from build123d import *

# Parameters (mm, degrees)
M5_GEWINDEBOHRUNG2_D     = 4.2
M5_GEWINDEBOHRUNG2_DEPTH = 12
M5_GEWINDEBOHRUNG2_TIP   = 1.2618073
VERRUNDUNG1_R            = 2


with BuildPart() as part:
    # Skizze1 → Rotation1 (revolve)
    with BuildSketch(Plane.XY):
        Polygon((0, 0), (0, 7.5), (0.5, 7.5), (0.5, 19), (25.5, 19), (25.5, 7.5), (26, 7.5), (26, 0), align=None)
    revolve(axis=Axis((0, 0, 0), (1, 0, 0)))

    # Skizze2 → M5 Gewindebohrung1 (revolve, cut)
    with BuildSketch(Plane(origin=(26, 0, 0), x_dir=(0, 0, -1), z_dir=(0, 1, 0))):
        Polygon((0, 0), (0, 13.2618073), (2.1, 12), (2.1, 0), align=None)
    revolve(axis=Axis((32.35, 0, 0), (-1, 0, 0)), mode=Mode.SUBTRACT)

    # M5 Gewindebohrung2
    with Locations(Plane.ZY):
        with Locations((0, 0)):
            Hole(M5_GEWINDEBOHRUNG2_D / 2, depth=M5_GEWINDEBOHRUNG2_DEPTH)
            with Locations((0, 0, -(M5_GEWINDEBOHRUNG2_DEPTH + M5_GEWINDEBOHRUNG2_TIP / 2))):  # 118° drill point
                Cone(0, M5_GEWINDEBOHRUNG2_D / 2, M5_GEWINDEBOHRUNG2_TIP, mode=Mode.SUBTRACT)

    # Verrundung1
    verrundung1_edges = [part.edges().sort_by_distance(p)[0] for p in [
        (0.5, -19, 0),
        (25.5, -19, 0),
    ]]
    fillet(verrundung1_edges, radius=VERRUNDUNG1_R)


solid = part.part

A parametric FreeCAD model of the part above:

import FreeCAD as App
import Part
import Sketcher
Q = App.Units.Quantity


def edges_at(feature, points):
    """Names of the edges that pass closest to the given points."""
    edges = feature.Shape.Edges
    near = lambda p: min(range(len(edges)), key=lambda i: edges[i].distToShape(Part.Vertex(*p))[0])
    return sorted({f"Edge{near(p) + 1}" for p in points})

doc = App.newDocument("Part")
body = doc.addObject("PartDesign::Body", "Body")

# Sketch on XY plane
sketch1 = body.newObject("Sketcher::SketchObject", "Sketch")
sketch1.AttachmentSupport = (doc.getObject("XY_Plane"), [""])
sketch1.MapMode = "FlatFace"
sketch1.addGeometry([
    Part.LineSegment(App.Vector(0, 7.5, 0), App.Vector(0, 0, 0)),  # 0
    Part.LineSegment(App.Vector(0, 0, 0), App.Vector(26, 0, 0)),  # 1
    Part.LineSegment(App.Vector(26, 0, 0), App.Vector(26, 7.5, 0)),  # 2
    Part.LineSegment(App.Vector(26, 7.5, 0), App.Vector(25.5, 7.5, 0)),  # 3
    Part.LineSegment(App.Vector(25.5, 7.5, 0), App.Vector(25.5, 19, 0)),  # 4
    Part.LineSegment(App.Vector(25.5, 19, 0), App.Vector(0.5, 19, 0)),  # 5
    Part.LineSegment(App.Vector(0.5, 19, 0), App.Vector(0.5, 7.5, 0)),  # 6
    Part.LineSegment(App.Vector(0.5, 7.5, 0), App.Vector(0, 7.5, 0)),  # 7
], False)
sketch1.addConstraint([
    Sketcher.Constraint("Coincident", 0, 2, 1, 1),
    Sketcher.Constraint("Coincident", 1, 2, 2, 1),
    Sketcher.Constraint("Coincident", 2, 2, 3, 1),
    Sketcher.Constraint("Coincident", 3, 2, 4, 1),
    Sketcher.Constraint("Coincident", 4, 2, 5, 1),
    Sketcher.Constraint("Coincident", 5, 2, 6, 1),
    Sketcher.Constraint("Coincident", 6, 2, 7, 1),
    Sketcher.Constraint("Coincident", 7, 2, 0, 1),
    Sketcher.Constraint("Vertical", 0),
    Sketcher.Constraint("Horizontal", 1),
    Sketcher.Constraint("Vertical", 2),
    Sketcher.Constraint("Horizontal", 3),
    Sketcher.Constraint("Vertical", 4),
    Sketcher.Constraint("Horizontal", 5),
    Sketcher.Constraint("Vertical", 6),
    Sketcher.Constraint("Horizontal", 7),
    Sketcher.Constraint("Coincident", 0, 2, -1, 1),
    Sketcher.Constraint("Horizontal", 3, 2, 6, 2),
    Sketcher.Constraint("Equal", 3, 7),
    Sketcher.Constraint("DistanceX", 1, 1, 1, 2, 26.0),
    Sketcher.Constraint("DistanceX", 5, 2, 5, 1, 25.0),
    Sketcher.Constraint("DistanceY", 0, 2, 0, 1, 7.5),
    Sketcher.Constraint("DistanceY", 4, 1, 4, 2, 11.5),
])
revolution = body.newObject("PartDesign::Revolution", "Revolution")
revolution.Profile = sketch1
revolution.ReferenceAxis = (sketch1, ["H_Axis"])
revolution.Angle = 360

# Sketch on XZ plane
sketch2 = body.newObject("Sketcher::SketchObject", "Sketch001")
sketch2.AttachmentSupport = (doc.getObject("XZ_Plane"), [""])
sketch2.MapMode = "FlatFace"
sketch2.addGeometry([
    Part.LineSegment(App.Vector(12.7, 0, 0), App.Vector(26, 0, 0)),
    Part.LineSegment(App.Vector(26, 0, 0), App.Vector(26, -2.1, 0)),
    Part.LineSegment(App.Vector(26, -2.1, 0), App.Vector(14, -2.1, 0)),
    Part.LineSegment(App.Vector(14, -2.1, 0), App.Vector(12.7, 0, 0)),
], False)
sketch2.addConstraint([
    Sketcher.Constraint("Coincident", 0, 2, 1, 1),
    Sketcher.Constraint("Coincident", 1, 2, 2, 1),
    Sketcher.Constraint("Coincident", 2, 2, 3, 1),
    Sketcher.Constraint("Coincident", 3, 2, 0, 1),
    Sketcher.Constraint("Horizontal", 0),
    Sketcher.Constraint("Vertical", 1),
    Sketcher.Constraint("Horizontal", 2),
    Sketcher.Constraint("PointOnObject", 0, 2, -1),
    Sketcher.Constraint("DistanceX", 2, 2, 2, 1, 12.0),
    Sketcher.Constraint("Angle", 3, Q("121 deg")),
    Sketcher.Constraint("DistanceY", 1, 2, 1, 1, 2.1),
    Sketcher.Constraint("DistanceX", -1, 1, 0, 2, 26.0),
])
groove = body.newObject("PartDesign::Groove", "Groove")
groove.Profile = sketch2
groove.ReferenceAxis = (sketch2, ["H_Axis"])
groove.Angle = 360

# Sketch on YZ plane
sketch3 = body.newObject("Sketcher::SketchObject", "Sketch002")
sketch3.AttachmentSupport = (doc.getObject("YZ_Plane"), [""])
sketch3.MapMode = "FlatFace"
sketch3.addGeometry(Part.Circle(App.Vector(0, 0, 0), App.Vector(0, 0, 1), 2.1), False)
sketch3.addConstraint([
    Sketcher.Constraint("Coincident", 0, 3, -1, 1),
    Sketcher.Constraint("Diameter", 0, 4.2),
])
doc.recompute()
hole = body.newObject("PartDesign::Hole", "Hole")
hole.Profile = sketch3
hole.ThreadType = "None"
hole.Diameter = 4.2
hole.DepthType = "Dimension"
hole.Depth = 12
hole.DrillPoint = "Angled"
hole.DrillPointAngle = 118
hole.Reversed = True
doc.recompute()

fillet = body.newObject("PartDesign::Fillet", "Fillet")
fillet.Base = (hole, edges_at(hole, [(0.5, -19, 0), (25.5, -19, 0)]))
fillet.Radius = 2

doc.recompute()
